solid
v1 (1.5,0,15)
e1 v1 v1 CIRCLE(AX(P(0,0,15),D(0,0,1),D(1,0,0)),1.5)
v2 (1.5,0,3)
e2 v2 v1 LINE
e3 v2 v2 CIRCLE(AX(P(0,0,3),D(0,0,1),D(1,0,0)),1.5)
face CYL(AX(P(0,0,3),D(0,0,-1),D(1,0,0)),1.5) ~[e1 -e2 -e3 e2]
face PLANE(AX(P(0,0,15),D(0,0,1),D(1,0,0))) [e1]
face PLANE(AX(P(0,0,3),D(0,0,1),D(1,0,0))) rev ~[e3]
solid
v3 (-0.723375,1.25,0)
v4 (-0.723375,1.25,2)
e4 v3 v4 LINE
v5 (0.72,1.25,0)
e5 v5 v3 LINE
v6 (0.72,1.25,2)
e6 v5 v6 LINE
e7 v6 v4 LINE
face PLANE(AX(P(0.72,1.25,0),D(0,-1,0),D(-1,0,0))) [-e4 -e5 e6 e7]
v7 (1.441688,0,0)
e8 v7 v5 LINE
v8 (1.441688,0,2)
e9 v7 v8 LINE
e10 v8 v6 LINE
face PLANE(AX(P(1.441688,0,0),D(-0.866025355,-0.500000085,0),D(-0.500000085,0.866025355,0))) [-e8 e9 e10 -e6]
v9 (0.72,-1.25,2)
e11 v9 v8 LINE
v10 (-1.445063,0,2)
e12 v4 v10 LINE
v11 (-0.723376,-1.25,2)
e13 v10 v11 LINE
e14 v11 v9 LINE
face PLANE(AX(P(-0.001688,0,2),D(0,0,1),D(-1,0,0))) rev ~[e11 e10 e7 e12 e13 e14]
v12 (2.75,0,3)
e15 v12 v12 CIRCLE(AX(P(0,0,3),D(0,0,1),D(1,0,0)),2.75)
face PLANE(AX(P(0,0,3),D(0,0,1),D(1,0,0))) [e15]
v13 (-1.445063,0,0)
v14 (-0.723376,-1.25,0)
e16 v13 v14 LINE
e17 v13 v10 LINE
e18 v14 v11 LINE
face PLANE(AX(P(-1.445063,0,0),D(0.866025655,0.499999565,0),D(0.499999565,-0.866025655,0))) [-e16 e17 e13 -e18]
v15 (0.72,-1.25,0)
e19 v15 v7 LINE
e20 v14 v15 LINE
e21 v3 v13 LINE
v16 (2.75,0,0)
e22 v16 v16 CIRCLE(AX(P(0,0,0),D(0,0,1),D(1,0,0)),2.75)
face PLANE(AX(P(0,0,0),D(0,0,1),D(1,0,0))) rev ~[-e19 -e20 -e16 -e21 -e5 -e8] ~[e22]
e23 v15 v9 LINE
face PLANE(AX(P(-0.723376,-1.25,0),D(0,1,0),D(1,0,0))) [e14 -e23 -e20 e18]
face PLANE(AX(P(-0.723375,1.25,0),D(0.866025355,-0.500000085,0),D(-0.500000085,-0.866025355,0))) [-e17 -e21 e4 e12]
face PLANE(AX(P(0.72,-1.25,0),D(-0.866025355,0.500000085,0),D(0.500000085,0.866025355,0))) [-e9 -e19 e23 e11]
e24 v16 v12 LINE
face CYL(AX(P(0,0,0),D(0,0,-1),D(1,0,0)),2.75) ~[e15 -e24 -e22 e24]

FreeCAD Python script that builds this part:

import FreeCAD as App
import Part
import Sketcher
Q = App.Units.Quantity


def add_polygon(sketch, points):
    """Adds a closed chain of lines whose ends are joined by coincident constraints."""
    first, n = sketch.GeometryCount, len(points)
    for a, b in zip(points, points[1:] + points[:1]):
        sketch.addGeometry(Part.LineSegment(App.Vector(*a, 0), App.Vector(*b, 0)), False)
    for i in range(n):
        sketch.addConstraint(Sketcher.Constraint("Coincident", first + i, 2, first + (i + 1) % n, 1))

doc = App.newDocument("Part")
params = doc.addObject("Spreadsheet::Sheet", "Params")
for row, (alias, value) in enumerate([
    ("sketch1_diameter", "3 mm"),
    ("pad1_length", "12 mm"),
    ("sketch2_diameter", "5.5 mm"),
    ("pad2_length", "3 mm"),
    ("pocket1_length", "2 mm"),
], start=1):
    params.set(f"A{row}", alias)
    params.set(f"B{row}", "=" + value)
    params.setAlias(f"B{row}", alias)

body = doc.addObject("PartDesign::Body", "Body")

# Sketch on XY plane
sketch1 = body.newObject("Sketcher::SketchObject", "Sketch")
sketch1.AttachmentSupport = (doc.getObject("XY_Plane"), [""])
sketch1.MapMode = "FlatFace"
sketch1.AttachmentOffset = App.Placement(App.Vector(0, 0, 3), App.Rotation())
sketch1.addGeometry(Part.Circle(App.Vector(0, 0, 0), App.Vector(0, 0, 1), 1.5), False)
sketch1.addConstraint([
    Sketcher.Constraint("Coincident", 0, 3, -1, 1),
    Sketcher.Constraint("Diameter", 0, Q("3 mm")),
])
sketch1.setExpression("Constraints[1]", "Params.sketch1_diameter")
pad1 = body.newObject("PartDesign::Pad", "Pad")
pad1.Profile = sketch1
pad1.setExpression("Length", "Params.pad1_length")
body2 = doc.addObject("PartDesign::Body", "Body001")

# Sketch on XY plane
sketch2 = body2.newObject("Sketcher::SketchObject", "Sketch001")
sketch2.AttachmentSupport = (doc.getObject("XY_Plane001"), [""])
sketch2.MapMode = "FlatFace"
sketch2.addGeometry(Part.Circle(App.Vector(0, 0, 0), App.Vector(0, 0, 1), 2.8), False)
sketch2.addConstraint([
    Sketcher.Constraint("Coincident", 0, 3, -1, 1),
    Sketcher.Constraint("Diameter", 0, Q("5.5 mm")),
])
sketch2.setExpression("Constraints[1]", "Params.sketch2_diameter")
pad2 = body2.newObject("PartDesign::Pad", "Pad001")
pad2.Profile = sketch2
pad2.setExpression("Length", "Params.pad2_length")

# Sketch on XY plane
sketch3 = body2.newObject("Sketcher::SketchObject", "Sketch002")
sketch3.AttachmentSupport = (doc.getObject("XY_Plane001"), [""])
sketch3.MapMode = "FlatFace"
add_polygon(sketch3, [(-0.7, -1.2), (-1.4, 0), (-0.7, 1.2), (0.7, 1.2), (1.4, 0), (0.7, -1.2)])  # lines 0-5
sketch3.addConstraint([
    Sketcher.Constraint("Horizontal", 2),
    Sketcher.Constraint("Horizontal", 5),
    Sketcher.Constraint("Symmetric", 2, 2, 4, 2, -1),
    Sketcher.Constraint("PointOnObject", 0, 2, -1),
    Sketcher.Constraint("PointOnObject", 3, 2, -1),
    Sketcher.Constraint("Parallel", 0, 3),
    Sketcher.Constraint("Parallel", 1, 4),
    Sketcher.Constraint("Angle", 1, Q("59.999994 deg")),
    Sketcher.Constraint("DistanceY", 4, 2, 2, 2, Q("2.5 mm")),
    Sketcher.Constraint("DistanceX", -1, 1, 2, 2, Q("0.72 mm")),
    Sketcher.Constraint("DistanceX", 2, 1, 2, 2, Q("1.443375 mm")),
])
pocket1 = body2.newObject("PartDesign::Pocket", "Pocket")
pocket1.Profile = sketch3
pocket1.setExpression("Length", "Params.pocket1_length")
pocket1.Reversed = True

doc.recompute()
